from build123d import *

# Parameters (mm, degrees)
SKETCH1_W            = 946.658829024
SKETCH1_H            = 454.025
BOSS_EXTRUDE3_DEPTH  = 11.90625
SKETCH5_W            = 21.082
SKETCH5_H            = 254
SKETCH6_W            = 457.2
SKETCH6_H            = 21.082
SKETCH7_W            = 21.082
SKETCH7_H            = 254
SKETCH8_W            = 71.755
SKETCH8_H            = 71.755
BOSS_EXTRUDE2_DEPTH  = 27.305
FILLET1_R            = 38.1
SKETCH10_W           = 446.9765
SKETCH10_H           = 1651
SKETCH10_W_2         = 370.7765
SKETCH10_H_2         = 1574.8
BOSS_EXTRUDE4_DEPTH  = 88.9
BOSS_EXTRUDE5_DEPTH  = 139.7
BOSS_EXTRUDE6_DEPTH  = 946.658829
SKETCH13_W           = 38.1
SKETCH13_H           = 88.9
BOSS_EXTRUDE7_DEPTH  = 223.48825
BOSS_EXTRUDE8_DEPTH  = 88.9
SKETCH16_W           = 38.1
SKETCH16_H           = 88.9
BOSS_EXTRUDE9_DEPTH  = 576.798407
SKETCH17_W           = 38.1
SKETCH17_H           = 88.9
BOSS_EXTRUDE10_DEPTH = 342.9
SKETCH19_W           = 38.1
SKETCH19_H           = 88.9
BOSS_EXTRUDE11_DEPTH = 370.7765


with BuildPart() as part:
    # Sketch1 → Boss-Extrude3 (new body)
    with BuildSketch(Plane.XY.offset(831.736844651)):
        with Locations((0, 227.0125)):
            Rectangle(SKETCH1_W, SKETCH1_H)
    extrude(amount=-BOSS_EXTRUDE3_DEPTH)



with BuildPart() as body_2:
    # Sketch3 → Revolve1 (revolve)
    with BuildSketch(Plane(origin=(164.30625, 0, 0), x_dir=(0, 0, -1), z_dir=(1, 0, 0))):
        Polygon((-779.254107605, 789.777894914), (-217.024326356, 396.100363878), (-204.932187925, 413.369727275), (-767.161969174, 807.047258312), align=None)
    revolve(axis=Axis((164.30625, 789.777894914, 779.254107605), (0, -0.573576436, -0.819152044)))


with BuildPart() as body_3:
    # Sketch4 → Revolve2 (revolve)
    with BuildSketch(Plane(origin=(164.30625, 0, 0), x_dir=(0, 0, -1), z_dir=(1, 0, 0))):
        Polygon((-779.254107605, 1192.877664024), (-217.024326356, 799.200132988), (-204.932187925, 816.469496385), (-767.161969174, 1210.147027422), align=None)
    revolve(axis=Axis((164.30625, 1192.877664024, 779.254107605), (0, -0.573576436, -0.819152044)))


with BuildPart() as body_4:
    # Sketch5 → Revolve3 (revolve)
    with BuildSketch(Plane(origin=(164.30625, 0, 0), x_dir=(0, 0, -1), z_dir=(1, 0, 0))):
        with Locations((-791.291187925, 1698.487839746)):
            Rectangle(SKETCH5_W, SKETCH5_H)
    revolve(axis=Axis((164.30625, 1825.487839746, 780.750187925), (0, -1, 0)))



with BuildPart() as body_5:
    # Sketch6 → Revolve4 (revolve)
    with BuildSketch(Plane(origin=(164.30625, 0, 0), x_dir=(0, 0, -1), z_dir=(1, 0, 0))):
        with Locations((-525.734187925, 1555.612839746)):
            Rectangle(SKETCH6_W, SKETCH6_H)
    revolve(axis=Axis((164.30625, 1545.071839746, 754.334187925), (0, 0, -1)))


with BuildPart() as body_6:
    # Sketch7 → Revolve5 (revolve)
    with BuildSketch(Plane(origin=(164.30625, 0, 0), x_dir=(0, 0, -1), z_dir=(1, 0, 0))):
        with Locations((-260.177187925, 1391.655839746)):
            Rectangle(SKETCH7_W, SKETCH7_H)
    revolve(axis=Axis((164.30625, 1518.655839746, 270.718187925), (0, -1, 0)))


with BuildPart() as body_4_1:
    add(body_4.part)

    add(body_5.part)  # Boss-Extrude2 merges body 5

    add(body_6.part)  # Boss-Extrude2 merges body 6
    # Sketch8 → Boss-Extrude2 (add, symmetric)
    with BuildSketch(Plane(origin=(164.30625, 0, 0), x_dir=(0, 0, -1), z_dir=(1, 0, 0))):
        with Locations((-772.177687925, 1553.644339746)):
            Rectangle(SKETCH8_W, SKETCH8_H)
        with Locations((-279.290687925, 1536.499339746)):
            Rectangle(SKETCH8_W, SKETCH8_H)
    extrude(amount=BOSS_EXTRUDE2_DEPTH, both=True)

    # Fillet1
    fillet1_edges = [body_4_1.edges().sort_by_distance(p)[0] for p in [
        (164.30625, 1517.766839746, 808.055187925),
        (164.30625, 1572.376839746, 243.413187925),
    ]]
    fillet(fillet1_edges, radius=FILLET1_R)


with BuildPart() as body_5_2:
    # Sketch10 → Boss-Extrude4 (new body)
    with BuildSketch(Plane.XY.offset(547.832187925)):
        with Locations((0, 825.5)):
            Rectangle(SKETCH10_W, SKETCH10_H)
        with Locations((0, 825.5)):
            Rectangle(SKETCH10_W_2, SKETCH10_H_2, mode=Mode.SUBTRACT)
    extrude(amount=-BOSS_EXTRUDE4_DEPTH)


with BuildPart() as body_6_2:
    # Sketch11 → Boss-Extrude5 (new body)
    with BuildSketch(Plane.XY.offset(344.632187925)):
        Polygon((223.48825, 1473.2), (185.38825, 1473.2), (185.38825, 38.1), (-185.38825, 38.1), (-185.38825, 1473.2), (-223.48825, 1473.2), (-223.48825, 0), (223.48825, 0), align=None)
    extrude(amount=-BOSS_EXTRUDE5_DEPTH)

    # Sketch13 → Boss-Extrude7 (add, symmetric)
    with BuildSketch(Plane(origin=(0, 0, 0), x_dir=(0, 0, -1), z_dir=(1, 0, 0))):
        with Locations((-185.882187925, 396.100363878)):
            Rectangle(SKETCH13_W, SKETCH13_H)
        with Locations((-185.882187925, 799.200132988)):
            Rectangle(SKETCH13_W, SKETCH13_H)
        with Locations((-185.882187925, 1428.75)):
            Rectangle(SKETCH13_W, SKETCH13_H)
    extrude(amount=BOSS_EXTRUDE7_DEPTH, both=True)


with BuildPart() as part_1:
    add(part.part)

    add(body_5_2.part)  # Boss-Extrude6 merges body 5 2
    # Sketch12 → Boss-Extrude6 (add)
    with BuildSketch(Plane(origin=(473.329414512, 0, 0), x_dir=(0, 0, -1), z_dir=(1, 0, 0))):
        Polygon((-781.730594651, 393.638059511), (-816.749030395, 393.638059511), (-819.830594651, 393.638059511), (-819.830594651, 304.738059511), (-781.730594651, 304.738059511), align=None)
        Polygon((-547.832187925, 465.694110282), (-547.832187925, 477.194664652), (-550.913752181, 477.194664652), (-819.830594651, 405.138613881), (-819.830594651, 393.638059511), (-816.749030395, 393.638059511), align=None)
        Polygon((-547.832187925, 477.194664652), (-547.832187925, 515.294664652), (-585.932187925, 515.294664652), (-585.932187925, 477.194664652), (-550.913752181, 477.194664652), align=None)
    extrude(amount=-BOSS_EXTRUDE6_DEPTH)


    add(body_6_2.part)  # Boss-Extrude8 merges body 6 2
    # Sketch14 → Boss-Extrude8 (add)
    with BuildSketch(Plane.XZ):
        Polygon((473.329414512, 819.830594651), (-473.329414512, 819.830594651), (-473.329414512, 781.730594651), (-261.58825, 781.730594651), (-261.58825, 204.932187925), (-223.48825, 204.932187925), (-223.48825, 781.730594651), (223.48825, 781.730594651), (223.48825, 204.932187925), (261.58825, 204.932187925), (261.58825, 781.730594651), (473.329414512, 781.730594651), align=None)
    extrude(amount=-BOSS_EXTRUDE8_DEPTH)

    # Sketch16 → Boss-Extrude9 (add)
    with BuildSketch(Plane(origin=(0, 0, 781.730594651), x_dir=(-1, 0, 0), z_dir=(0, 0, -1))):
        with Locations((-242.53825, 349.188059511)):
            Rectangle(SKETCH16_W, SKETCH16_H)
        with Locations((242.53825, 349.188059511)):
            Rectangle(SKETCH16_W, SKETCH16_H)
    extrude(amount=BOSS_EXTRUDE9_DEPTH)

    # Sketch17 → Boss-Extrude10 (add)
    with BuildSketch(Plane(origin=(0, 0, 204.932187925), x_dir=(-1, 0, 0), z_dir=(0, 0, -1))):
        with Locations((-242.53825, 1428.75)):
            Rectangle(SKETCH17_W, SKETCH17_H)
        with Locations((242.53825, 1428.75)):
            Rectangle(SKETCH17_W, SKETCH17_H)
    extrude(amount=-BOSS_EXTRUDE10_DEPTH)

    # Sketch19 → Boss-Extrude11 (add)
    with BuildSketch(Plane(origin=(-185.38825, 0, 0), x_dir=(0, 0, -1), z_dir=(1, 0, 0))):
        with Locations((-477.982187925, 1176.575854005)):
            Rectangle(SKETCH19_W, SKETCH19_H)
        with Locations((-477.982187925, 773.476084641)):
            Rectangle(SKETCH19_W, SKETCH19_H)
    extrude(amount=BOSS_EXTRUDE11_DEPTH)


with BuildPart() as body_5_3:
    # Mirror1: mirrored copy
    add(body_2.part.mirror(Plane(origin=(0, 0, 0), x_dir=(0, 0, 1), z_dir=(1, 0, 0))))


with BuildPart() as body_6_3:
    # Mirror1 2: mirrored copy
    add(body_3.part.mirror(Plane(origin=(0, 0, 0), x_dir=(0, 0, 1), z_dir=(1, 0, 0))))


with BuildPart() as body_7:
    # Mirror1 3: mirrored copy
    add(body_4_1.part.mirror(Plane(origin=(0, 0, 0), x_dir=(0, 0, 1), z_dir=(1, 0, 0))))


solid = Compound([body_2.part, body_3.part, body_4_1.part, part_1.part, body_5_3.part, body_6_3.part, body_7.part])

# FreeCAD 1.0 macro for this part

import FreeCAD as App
import Part
import Sketcher

V = App.Vector
Q = App.Units.Quantity


def edges_at(feature, points):
    """Names of the edges that pass closest to the given points."""
    edges = feature.Shape.Edges
    near = lambda p: min(range(len(edges)), key=lambda i: edges[i].distToShape(Part.Vertex(*p))[0])
    return sorted({f"Edge{near(p) + 1}" for p in points})


def add_polygon(sketch, points):
    """Adds a closed chain of lines whose ends are joined by coincident constraints."""
    first, n = sketch.GeometryCount, len(points)
    for a, b in zip(points, points[1:] + points[:1]):
        sketch.addGeometry(Part.LineSegment(App.Vector(*a, 0), App.Vector(*b, 0)), False)
    for i in range(n):
        sketch.addConstraint(Sketcher.Constraint("Coincident", first + i, 2, first + (i + 1) % n, 1))

doc = App.newDocument("Part")
params = doc.addObject("Spreadsheet::Sheet", "Params")
for row, (alias, value) in enumerate([
    ("sketch1_height", "17.875 in"),
    ("pad1_length", "0.46875 in"),
    ("sketch2_length", "0.83 in"),
    ("revolution_angle", "360 deg"),
    ("sketch3_length", "0.83 in"),
    ("revolution2_angle", "360 deg"),
    ("sketch4_width", "10 in"),
    ("sketch4_height", "0.83 in"),
    ("revolution3_angle", "360 deg"),
    ("sketch5_height", "18 in"),
    ("sketch5_width", "0.83 in"),
    ("revolution4_angle", "360 deg"),
    ("sketch6_width", "10 in"),
    ("sketch6_height", "0.83 in"),
    ("revolution5_angle", "360 deg"),
    ("sketch7_width", "2.825 in"),
    ("pad2_length", "2.15 in"),
    ("fillet_radius", "1.5 in"),
    ("sketch8_height", "65 in"),
    ("sketch8_height2", "62 in"),
    ("pad3_length", "3.5 in"),
    ("sketch9_height", "58 in"),
    ("sketch9_width", "1.5 in"),
    ("sketch9_height2", "56.5 in"),
    ("pad4_length", "5.5 in"),
    ("sketch10_width", "3.5 in"),
    ("sketch10_height", "1.5 in"),
    ("pad5_length", "17.5975 in"),
    ("sketch11_width", "1.5 in"),
    ("sketch11_width2", "3.5 in"),
    ("pad6_length", "946.658829 mm"),
    ("sketch12_width", "1.5 in"),
    ("pad7_length", "3.5 in"),
    ("sketch13_width", "1.5 in"),
    ("sketch13_height", "3.5 in"),
    ("pad8_length", "576.798407 mm"),
    ("sketch14_width", "1.5 in"),
    ("sketch14_height", "3.5 in"),
    ("pad9_length", "13.5 in"),
    ("sketch15_width", "3.5 in"),
    ("sketch15_height", "1.5 in"),
    ("pad10_length", "14.5975 in"),
], start=1):
    params.set(f"A{row}", alias)
    params.set(f"B{row}", "=" + value)
    params.setAlias(f"B{row}", alias)

body = doc.addObject("PartDesign::Body", "Body")

sketch1 = body.newObject("Sketcher::SketchObject", "Sketch")
sketch1.AttachmentSupport = (doc.getObject("XY_Plane"), [""])
sketch1.MapMode = "FlatFace"
sketch1.AttachmentOffset = App.Placement(V(0, 0, 831.736845), App.Rotation())
add_polygon(sketch1, [(-473, 454), (-473, 0), (473, 0), (473, 454)])
sketch1.addConstraint([
    Sketcher.Constraint("Vertical", 0),
    Sketcher.Constraint("Horizontal", 1),
    Sketcher.Constraint("Vertical", 2),
    Sketcher.Constraint("Horizontal", 3),
    Sketcher.Constraint("Symmetric", 0, 2, 1, 2, -1, 1),
    Sketcher.Constraint("DistanceY", 0, 2, 0, 1, Q("17.875 in")),
    Sketcher.Constraint("DistanceX", 1, 1, 1, 2, 946.658829),
])
sketch1.setExpression("Constraints[9]", "Params.sketch1_height")
pad1 = body.newObject("PartDesign::Pad", "Pad")
pad1.Profile = sketch1
pad1.setExpression("Length", "Params.pad1_length")
pad1.Reversed = True
body2 = doc.addObject("PartDesign::Body", "Body001")

sketch2 = body2.newObject("Sketcher::SketchObject", "Sketch001")
sketch2.AttachmentSupport = (doc.getObject("YZ_Plane001"), [""])
sketch2.MapMode = "FlatFace"
sketch2.AttachmentOffset = App.Placement(V(0, 0, 6.46875 * 25.4), App.Rotation())
add_polygon(sketch2, [(790, 779), (396, 217), (413, 205), (807, 767)])
sketch2.addGeometry(Part.LineSegment(V(790, 779, 0), V(396, 217, 0)), True)
sketch2.addConstraint([
    Sketcher.Constraint("Coincident", 4, 1, 3, 2),
    Sketcher.Constraint("Coincident", 4, 2, 0, 2),
    Sketcher.Constraint("Perpendicular", 0, 1),
    Sketcher.Constraint("Perpendicular", 1, 2),
    Sketcher.Constraint("Perpendicular", 2, 3),
    Sketcher.Constraint("Angle", 0, Q("-125 deg")),
    Sketcher.Constraint("Distance", 1, Q("0.83 in")),
    Sketcher.Constraint("Distance", 0, 686.35583),
    Sketcher.Constraint("DistanceX", -1, 1, 2, 2, 807.047258),
    Sketcher.Constraint("DistanceY", -1, 1, 2, 2, 767.161969),
])
sketch2.setExpression("Constraints[10]", "Params.sketch2_length")
revolution = body2.newObject("PartDesign::Revolution", "Revolution")
revolution.Profile = sketch2
revolution.ReferenceAxis = (sketch2, ["Axis0"])
revolution.setExpression("Angle", "Params.revolution_angle")
body3 = doc.addObject("PartDesign::Body", "Body002")

sketch3 = body3.newObject("Sketcher::SketchObject", "Sketch002")
sketch3.AttachmentSupport = (doc.getObject("YZ_Plane002"), [""])
sketch3.MapMode = "FlatFace"
sketch3.AttachmentOffset = App.Placement(V(0, 0, 6.46875 * 25.4), App.Rotation())
add_polygon(sketch3, [(1193, 779), (799, 217), (816, 205), (1210, 767)])
sketch3.addGeometry(Part.LineSegment(V(1193, 779, 0), V(799, 217, 0)), True)
sketch3.addConstraint([
    Sketcher.Constraint("Coincident", 4, 1, 3, 2),
    Sketcher.Constraint("Coincident", 4, 2, 0, 2),
    Sketcher.Constraint("Perpendicular", 0, 1),
    Sketcher.Constraint("Perpendicular", 1, 2),
    Sketcher.Constraint("Perpendicular", 2, 3),
    Sketcher.Constraint("Angle", 0, Q("-125 deg")),
    Sketcher.Constraint("Distance", 1, Q("0.83 in")),
    Sketcher.Constraint("Distance", 0, 686.35583),
    Sketcher.Constraint("DistanceY", -1, 1, 2, 2, 767.161969),
    Sketcher.Constraint("DistanceX", -1, 1, 0, 2, 799.200133),
])
sketch3.setExpression("Constraints[10]", "Params.sketch3_length")
revolution2 = body3.newObject("PartDesign::Revolution", "Revolution001")
revolution2.Profile = sketch3
revolution2.ReferenceAxis = (sketch3, ["Axis0"])
revolution2.setExpression("Angle", "Params.revolution2_angle")
body4 = doc.addObject("PartDesign::Body", "Body003")

sketch4 = body4.newObject("Sketcher::SketchObject", "Sketch003")
sketch4.AttachmentSupport = (doc.getObject("YZ_Plane003"), [""])
sketch4.MapMode = "FlatFace"
sketch4.AttachmentOffset = App.Placement(V(0, 0, 6.46875 * 25.4), App.Rotation())
add_polygon(sketch4, [(1825, 802), (1571, 802), (1571, 781), (1825, 781)])
sketch4.addGeometry(Part.LineSegment(V(1825, 781, 0), V(1571, 781, 0)), True)
sketch4.addConstraint([
    Sketcher.Constraint("Horizontal", 0),
    Sketcher.Constraint("Vertical", 1),
    Sketcher.Constraint("Horizontal", 2),
    Sketcher.Constraint("Vertical", 3),
    Sketcher.Constraint("Horizontal", 4),
    Sketcher.Constraint("Coincident", 4, 1, 2, 2),
    Sketcher.Constraint("Vertical", 0, 2, 4, 2),
    Sketcher.Constraint("DistanceX", 0, 2, 0, 1, Q("10 in")),
    Sketcher.Constraint("DistanceY", 1, 2, 1, 1, Q("0.83 in")),
    Sketcher.Constraint("DistanceX", -1, 1, 0, 2, Q("61.8696 in")),
    Sketcher.Constraint("DistanceY", -1, 1, 0, 2, 801.832188),
])
sketch4.setExpression("Constraints[11]", "Params.sketch4_width")
sketch4.setExpression("Constraints[12]", "Params.sketch4_height")
revolution3 = body4.newObject("PartDesign::Revolution", "Revolution002")
revolution3.Profile = sketch4
revolution3.ReferenceAxis = (sketch4, ["Axis0"])
revolution3.setExpression("Angle", "Params.revolution3_angle")
body5 = doc.addObject("PartDesign::Body", "Body004")

sketch5 = body5.newObject("Sketcher::SketchObject", "Sketch004")
sketch5.AttachmentSupport = (doc.getObject("YZ_Plane004"), [""])
sketch5.MapMode = "FlatFace"
sketch5.AttachmentOffset = App.Placement(V(0, 0, 6.46875 * 25.4), App.Rotation())
add_polygon(sketch5, [(1566, 754), (1545, 754), (1545, 297), (1566, 297)])
sketch5.addGeometry(Part.LineSegment(V(1545, 754, 0), V(1545, 297, 0)), True)
sketch5.addConstraint([
    Sketcher.Constraint("Horizontal", 0),
    Sketcher.Constraint("Vertical", 1),
    Sketcher.Constraint("Horizontal", 2),
    Sketcher.Constraint("Vertical", 3),
    Sketcher.Constraint("Vertical", 4),
    Sketcher.Constraint("Coincident", 4, 1, 0, 2),
    Sketcher.Constraint("Horizontal", 2, 2, 4, 2),
    Sketcher.Constraint("DistanceY", 1, 2, 1, 1, Q("18 in")),
    Sketcher.Constraint("DistanceX", 0, 2, 0, 1, Q("0.83 in")),
    Sketcher.Constraint("DistanceX", -1, 1, 0, 2, Q("60.8296 in")),
    Sketcher.Constraint("DistanceY", -1, 1, 0, 2, 754.334188),
])
sketch5.setExpression("Constraints[11]", "Params.sketch5_height")
sketch5.setExpression("Constraints[12]", "Params.sketch5_width")
revolution4 = body5.newObject("PartDesign::Revolution", "Revolution003")
revolution4.Profile = sketch5
revolution4.ReferenceAxis = (sketch5, ["Axis0"])
revolution4.setExpression("Angle", "Params.revolution4_angle")
body6 = doc.addObject("PartDesign::Body", "Body005")

sketch6 = body6.newObject("Sketcher::SketchObject", "Sketch005")
sketch6.AttachmentSupport = (doc.getObject("YZ_Plane005"), [""])
sketch6.MapMode = "FlatFace"
sketch6.AttachmentOffset = App.Placement(V(0, 0, 6.46875 * 25.4), App.Rotation())
add_polygon(sketch6, [(1519, 271), (1265, 271), (1265, 250), (1519, 250)])
sketch6.addGeometry(Part.LineSegment(V(1519, 271, 0), V(1265, 271, 0)), True)
sketch6.addConstraint([
    Sketcher.Constraint("Horizontal", 0),
    Sketcher.Constraint("Vertical", 1),
    Sketcher.Constraint("Horizontal", 2),
    Sketcher.Constraint("Vertical", 3),
    Sketcher.Constraint("Horizontal", 4),
    Sketcher.Constraint("Coincident", 4, 1, 3, 2),
    Sketcher.Constraint("Vertical", 1, 2, 4, 2),
    Sketcher.Constraint("DistanceX", 0, 2, 0, 1, Q("10 in")),
    Sketcher.Constraint("DistanceY", 1, 2, 1, 1, Q("0.83 in")),
    Sketcher.Constraint("DistanceX", -1, 1, 0, 2, Q("49.7896 in")),
    Sketcher.Constraint("DistanceY", -1, 1, 0, 2, 270.718188),
])
sketch6.setExpression("Constraints[11]", "Params.sketch6_width")
sketch6.setExpression("Constraints[12]", "Params.sketch6_height")
revolution5 = body6.newObject("PartDesign::Revolution", "Revolution004")
revolution5.Profile = sketch6
revolution5.ReferenceAxis = (sketch6, ["Axis0"])
revolution5.setExpression("Angle", "Params.revolution5_angle")
body4.AllowCompound = True
doc.recompute()

boolean = body4.newObject("PartDesign::Boolean", "Boolean")
boolean.Type = "Fuse"
boolean.addObjects([body5])
doc.recompute()

boolean2 = body4.newObject("PartDesign::Boolean", "Boolean001")
boolean2.Type = "Fuse"
boolean2.addObjects([body6])

sketch7 = body4.newObject("Sketcher::SketchObject", "Sketch006")
sketch7.AttachmentSupport = (doc.getObject("YZ_Plane003"), [""])
sketch7.MapMode = "FlatFace"
sketch7.AttachmentOffset = App.Placement(V(0, 0, 6.46875 * 25.4), App.Rotation())
add_polygon(sketch7, [(1590, 808), (1518, 808), (1518, 736), (1590, 736)])
add_polygon(sketch7, [(1572, 315), (1501, 315), (1501, 243), (1572, 243)])
sketch7.addConstraint([
    Sketcher.Constraint("Horizontal", 0),
    Sketcher.Constraint("Vertical", 1),
    Sketcher.Constraint("Horizontal", 2),
    Sketcher.Constraint("Vertical", 3),
    Sketcher.Constraint("Horizontal", 4),
    Sketcher.Constraint("Vertical", 5),
    Sketcher.Constraint("Horizontal", 6),
    Sketcher.Constraint("Vertical", 7),
    Sketcher.Constraint("Equal", 2, 4),
    Sketcher.Constraint("Equal", 6, 1),
    Sketcher.Constraint("Equal", 3, 5),
    Sketcher.Constraint("DistanceX", 4, 2, 2, 2, Q("3.5 in")),
    Sketcher.Constraint("DistanceX", 0, 2, 0, 1, Q("2.825 in")),
    Sketcher.Constraint("DistanceY", 4, 2, 1, 2, Q("16.58 in")),
    Sketcher.Constraint("DistanceX", -1, 1, 0, 2, Q("59.7546 in")),
    Sketcher.Constraint("DistanceY", -1, 1, 0, 2, 808.055188),
])
sketch7.setExpression("Constraints[20]", "Params.sketch7_width")
pad2 = body4.newObject("PartDesign::Pad", "Pad001")
pad2.Profile = sketch7
pad2.setExpression("Length", "Params.pad2_length")
pad2.Midplane = True
doc.recompute()

fillet = body4.newObject("PartDesign::Fillet", "Fillet")
fillet.Base = (pad2, edges_at(pad2, [(164.306, 1517.767, 808.055), (164.306, 1572.377, 243.413)]))
fillet.setExpression("Radius", "Params.fillet_radius")
body7 = doc.addObject("PartDesign::Body", "Body006")

sketch8 = body7.newObject("Sketcher::SketchObject", "Sketch007")
sketch8.AttachmentSupport = (doc.getObject("XY_Plane006"), [""])
sketch8.MapMode = "FlatFace"
sketch8.AttachmentOffset = App.Placement(V(0, 0, 547.832188), App.Rotation())
add_polygon(sketch8, [(-223, 1651), (-223, 0), (223, 0), (223, 1651)])
add_polygon(sketch8, [(185, 38), (-185, 38), (-185, 1613), (185, 1613)])
sketch8.addConstraint([
    Sketcher.Constraint("Vertical", 0),
    Sketcher.Constraint("Horizontal", 1),
    Sketcher.Constraint("Vertical", 2),
    Sketcher.Constraint("Horizontal", 3),
    Sketcher.Constraint("Horizontal", 4),
    Sketcher.Constraint("Vertical", 5),
    Sketcher.Constraint("Horizontal", 6),
    Sketcher.Constraint("Vertical", 7),
    Sketcher.Constraint("Symmetric", 0, 2, 1, 2, -1, 1),
    Sketcher.Constraint("DistanceY", 0, 2, 0, 1, Q("65 in")),
    Sketcher.Constraint("DistanceY", 5, 1, 5, 2, Q("62 in")),
    Sketcher.Constraint("DistanceY", -1, 1, 4, 2, Q("1.5 in")),
    Sketcher.Constraint("DistanceX", 0, 2, 4, 2, Q("1.5 in")),
    Sketcher.Constraint("DistanceX", 6, 2, 2, 2, Q("1.5 in")),
    Sketcher.Constraint("DistanceX", 1, 1, 1, 2, Q("17.5975 in")),
])
sketch8.setExpression("Constraints[17]", "Params.sketch8_height")
sketch8.setExpression("Constraints[18]", "Params.sketch8_height2")
pad3 = body7.newObject("PartDesign::Pad", "Pad002")
pad3.Profile = sketch8
pad3.setExpression("Length", "Params.pad3_length")
pad3.Reversed = True
body8 = doc.addObject("PartDesign::Body", "Body007")

sketch9 = body8.newObject("Sketcher::SketchObject", "Sketch008")
sketch9.AttachmentSupport = (doc.getObject("XY_Plane007"), [""])
sketch9.MapMode = "FlatFace"
sketch9.AttachmentOffset = App.Placement(V(0, 0, 344.632188), App.Rotation())
add_polygon(sketch9, [(223, 1473), (185, 1473), (185, 38), (-185, 38), (-185, 1473), (-223, 1473), (-223, 0), (223, 0)])
sketch9.addConstraint([
    Sketcher.Constraint("Horizontal", 0),
    Sketcher.Constraint("Vertical", 1),
    Sketcher.Constraint("Horizontal", 2),
    Sketcher.Constraint("Vertical", 3),
    Sketcher.Constraint("Horizontal", 4),
    Sketcher.Constraint("Vertical", 5),
    Sketcher.Constraint("Horizontal", 6),
    Sketcher.Constraint("Vertical", 7),
    Sketcher.Constraint("Symmetric", 5, 2, 6, 2, -1, 1),
    Sketcher.Constraint("Symmetric", 0, 2, 3, 2, -2),
    Sketcher.Constraint("DistanceY", 5, 2, 5, 1, Q("58 in")),
    Sketcher.Constraint("DistanceX", 0, 2, 0, 1, Q("1.5 in")),
    Sketcher.Constraint("DistanceY", 1, 2, 1, 1, Q("56.5 in")),
    Sketcher.Constraint("DistanceX", 2, 2, 2, 1, Q("14.5975 in")),
])
sketch9.setExpression("Constraints[18]", "Params.sketch9_height")
sketch9.setExpression("Constraints[19]", "Params.sketch9_width")
sketch9.setExpression("Constraints[20]", "Params.sketch9_height2")
pad4 = body8.newObject("PartDesign::Pad", "Pad003")
pad4.Profile = sketch9
pad4.setExpression("Length", "Params.pad4_length")
pad4.Reversed = True

sketch10 = body8.newObject("Sketcher::SketchObject", "Sketch009")
sketch10.AttachmentSupport = (doc.getObject("YZ_Plane007"), [""])
sketch10.MapMode = "FlatFace"
add_polygon(sketch10, [(441, 205), (352, 205), (352, 167), (441, 167)])
add_polygon(sketch10, [(844, 205), (755, 205), (755, 167), (844, 167)])
add_polygon(sketch10, [(1473, 205), (1384, 205), (1384, 167), (1473, 167)])
sketch10.addConstraint([
    Sketcher.Constraint("Horizontal", 0),
    Sketcher.Constraint("Vertical", 1),
    Sketcher.Constraint("Horizontal", 2),
    Sketcher.Constraint("Vertical", 3),
    Sketcher.Constraint("Horizontal", 4),
    Sketcher.Constraint("Vertical", 5),
    Sketcher.Constraint("Horizontal", 6),
    Sketcher.Constraint("Vertical", 7),
    Sketcher.Constraint("Horizontal", 8),
    Sketcher.Constraint("Vertical", 9),
    Sketcher.Constraint("Horizontal", 10),
    Sketcher.Constraint("Vertical", 11),
    Sketcher.Constraint("Horizontal", 3, 2, 4, 2),
    Sketcher.Constraint("Horizontal", 2, 2, 5, 2),
    Sketcher.Constraint("Horizontal", 7, 2, 8, 2),
    Sketcher.Constraint("Horizontal", 6, 2, 9, 2),
    Sketcher.Constraint("Equal", 2, 4),
    Sketcher.Constraint("Equal", 6, 8),
    Sketcher.Constraint("DistanceX", 0, 2, 0, 1, Q("3.5 in")),
    Sketcher.Constraint("DistanceY", 1, 2, 1, 1, Q("1.5 in")),
    Sketcher.Constraint("DistanceX", -1, 1, 10, 2, Q("58 in")),
    Sketcher.Constraint("DistanceX", 3, 2, 4, 2, 314.199769),
    Sketcher.Constraint("DistanceX", -1, 1, 0, 2, 351.650364),
    Sketcher.Constraint("DistanceY", -1, 1, 0, 2, 204.932188),
])
sketch10.setExpression("Constraints[30]", "Params.sketch10_width")
sketch10.setExpression("Constraints[31]", "Params.sketch10_height")
pad5 = body8.newObject("PartDesign::Pad", "Pad004")
pad5.Profile = sketch10
pad5.setExpression("Length", "Params.pad5_length")
pad5.Midplane = True
body.AllowCompound = True
doc.recompute()

boolean3 = body.newObject("PartDesign::Boolean", "Boolean002")
boolean3.Type = "Fuse"
boolean3.addObjects([body7])

sketch11 = body.newObject("Sketcher::SketchObject", "Sketch010")
sketch11.AttachmentSupport = (doc.getObject("YZ_Plane"), [""])
sketch11.MapMode = "FlatFace"
sketch11.AttachmentOffset = App.Placement(V(0, 0, 473.329415), App.Rotation())
add_polygon(sketch11, [(394, 782), (394, 817), (466, 548), (515, 548), (515, 586), (477, 586), (477, 551), (405, 820), (305, 820), (305, 782)])
sketch11.addConstraint([
    Sketcher.Constraint("Vertical", 0),
    Sketcher.Constraint("Horizontal", 2),
    Sketcher.Constraint("Vertical", 3),
    Sketcher.Constraint("Horizontal", 4),
    Sketcher.Constraint("Vertical", 5),
    Sketcher.Constraint("Horizontal", 7),
    Sketcher.Constraint("Vertical", 8),
    Sketcher.Constraint("Horizontal", 9),
    Sketcher.Constraint("Parallel", 1, 6),
    Sketcher.Constraint("Equal", 4, 3),
    Sketcher.Constraint("Equal", 0, 5),
    Sketcher.Constraint("Equal", 3, 8),
    Sketcher.Constraint("DistanceX", 4, 2, 4, 1, Q("1.5 in")),
    Sketcher.Constraint("DistanceX", 9, 1, 9, 2, Q("3.5 in")),
    Sketcher.Constraint("Angle", 1, Q("-75 deg")),
    Sketcher.Constraint("Distance", 1, 278.403202),
    Sketcher.Constraint("DistanceX", 2, 1, 2, 2, 49.600554),
    Sketcher.Constraint("DistanceY", 0, 1, 0, 2, 35.018436),
    Sketcher.Constraint("DistanceX", -1, 1, 0, 2, 393.63806),
    Sketcher.Constraint("DistanceY", -1, 1, 0, 2, 816.74903),
])
sketch11.setExpression("Constraints[22]", "Params.sketch11_width")
sketch11.setExpression("Constraints[23]", "Params.sketch11_width2")
pad6 = body.newObject("PartDesign::Pad", "Pad005")
pad6.Profile = sketch11
pad6.setExpression("Length", "Params.pad6_length")
pad6.Reversed = True
doc.recompute()

boolean4 = body.newObject("PartDesign::Boolean", "Boolean003")
boolean4.Type = "Fuse"
boolean4.addObjects([body8])

sketch12 = body.newObject("Sketcher::SketchObject", "Sketch011")
sketch12.AttachmentSupport = (doc.getObject("XZ_Plane"), [""])
sketch12.MapMode = "FlatFace"
add_polygon(sketch12, [(473, 820), (-473, 820), (-473, 782), (-262, 782), (-262, 205), (-223, 205), (-223, 782), (223, 782), (223, 205), (262, 205), (262, 782), (473, 782)])
sketch12.addConstraint([
    Sketcher.Constraint("Horizontal", 0),
    Sketcher.Constraint("Vertical", 1),
    Sketcher.Constraint("Horizontal", 2),
    Sketcher.Constraint("Vertical", 3),
    Sketcher.Constraint("Horizontal", 4),
    Sketcher.Constraint("Vertical", 5),
    Sketcher.Constraint("Horizontal", 6),
    Sketcher.Constraint("Vertical", 7),
    Sketcher.Constraint("Horizontal", 8),
    Sketcher.Constraint("Vertical", 9),
    Sketcher.Constraint("Horizontal", 10),
    Sketcher.Constraint("Vertical", 11),
    Sketcher.Constraint("Symmetric", 4, 2, 7, 2, -2),
    Sketcher.Constraint("Symmetric", 2, 2, 9, 2, -2),
    Sketcher.Constraint("Horizontal", 2, 2, 5, 2),
    Sketcher.Constraint("Equal", 2, 10),
    Sketcher.Constraint("Equal", 8, 1),
    Sketcher.Constraint("DistanceX", 4, 1, 4, 2, Q("1.5 in")),
    Sketcher.Constraint("DistanceX", 6, 1, 6, 2, Q("17.5975 in")),
    Sketcher.Constraint("DistanceX", 0, 2, 0, 1, 946.658829),
    Sketcher.Constraint("DistanceY", 3, 2, 3, 1, 576.798407),
    Sketcher.Constraint("DistanceY", -1, 1, 0, 2, 819.830595),
])
sketch12.setExpression("Constraints[29]", "Params.sketch12_width")
pad7 = body.newObject("PartDesign::Pad", "Pad006")
pad7.Profile = sketch12
pad7.setExpression("Length", "Params.pad7_length")
pad7.Reversed = True

sketch13 = body.newObject("Sketcher::SketchObject", "Sketch012")
sketch13.AttachmentSupport = (doc.getObject("XY_Plane"), [""])
sketch13.MapMode = "FlatFace"
sketch13.AttachmentOffset = App.Placement(V(0, 0, 781.730595), App.Rotation())
add_polygon(sketch13, [(262, 394), (262, 305), (223, 305), (223, 394)])
add_polygon(sketch13, [(-223, 394), (-223, 305), (-262, 305), (-262, 394)])
sketch13.addConstraint([
    Sketcher.Constraint("Vertical", 0),
    Sketcher.Constraint("Horizontal", 1),
    Sketcher.Constraint("Vertical", 2),
    Sketcher.Constraint("Horizontal", 3),
    Sketcher.Constraint("Vertical", 4),
    Sketcher.Constraint("Horizontal", 5),
    Sketcher.Constraint("Vertical", 6),
    Sketcher.Constraint("Horizontal", 7),
    Sketcher.Constraint("Symmetric", 1, 2, 4, 2, -2),
    Sketcher.Constraint("Symmetric", 3, 2, 6, 2, -2),
    Sketcher.Constraint("DistanceX", 1, 2, 1, 1, Q("1.5 in")),
    Sketcher.Constraint("DistanceY", 0, 2, 0, 1, Q("3.5 in")),
    Sketcher.Constraint("DistanceX", 4, 2, 1, 2, Q("17.5975 in")),
    Sketcher.Constraint("DistanceY", -1, 1, 0, 2, 304.73806),
])
sketch13.setExpression("Constraints[18]", "Params.sketch13_width")
sketch13.setExpression("Constraints[19]", "Params.sketch13_height")
pad8 = body.newObject("PartDesign::Pad", "Pad007")
pad8.Profile = sketch13
pad8.setExpression("Length", "Params.pad8_length")
pad8.Reversed = True

sketch14 = body.newObject("Sketcher::SketchObject", "Sketch013")
sketch14.AttachmentSupport = (doc.getObject("XY_Plane"), [""])
sketch14.MapMode = "FlatFace"
sketch14.AttachmentOffset = App.Placement(V(0, 0, 204.932188), App.Rotation())
add_polygon(sketch14, [(262, 1473), (262, 1384), (223, 1384), (223, 1473)])
add_polygon(sketch14, [(-223, 1473), (-223, 1384), (-262, 1384), (-262, 1473)])
sketch14.addConstraint([
    Sketcher.Constraint("Vertical", 0),
    Sketcher.Constraint("Horizontal", 1),
    Sketcher.Constraint("Vertical", 2),
    Sketcher.Constraint("Horizontal", 3),
    Sketcher.Constraint("Vertical", 4),
    Sketcher.Constraint("Horizontal", 5),
    Sketcher.Constraint("Vertical", 6),
    Sketcher.Constraint("Horizontal", 7),
    Sketcher.Constraint("Symmetric", 1, 2, 4, 2, -2),
    Sketcher.Constraint("Symmetric", 3, 2, 6, 2, -2),
    Sketcher.Constraint("DistanceX", 1, 2, 1, 1, Q("1.5 in")),
    Sketcher.Constraint("DistanceY", 0, 2, 0, 1, Q("3.5 in")),
    Sketcher.Constraint("DistanceY", -1, 1, 2, 2, Q("58 in")),
    Sketcher.Constraint("DistanceX", 4, 2, 1, 2, Q("17.5975 in")),
])
sketch14.setExpression("Constraints[18]", "Params.sketch14_width")
sketch14.setExpression("Constraints[19]", "Params.sketch14_height")
pad9 = body.newObject("PartDesign::Pad", "Pad008")
pad9.Profile = sketch14
pad9.setExpression("Length", "Params.pad9_length")

sketch15 = body.newObject("Sketcher::SketchObject", "Sketch014")
sketch15.AttachmentSupport = (doc.getObject("YZ_Plane"), [""])
sketch15.MapMode = "FlatFace"
sketch15.AttachmentOffset = App.Placement(V(0, 0, -185.38825), App.Rotation())
add_polygon(sketch15, [(1221, 497), (1132, 497), (1132, 459), (1221, 459)])
add_polygon(sketch15, [(818, 497), (729, 497), (729, 459), (818, 459)])
sketch15.addConstraint([
    Sketcher.Constraint("Horizontal", 0),
    Sketcher.Constraint("Vertical", 1),
    Sketcher.Constraint("Horizontal", 2),
    Sketcher.Constraint("Vertical", 3),
    Sketcher.Constraint("Horizontal", 4),
    Sketcher.Constraint("Vertical", 5),
    Sketcher.Constraint("Horizontal", 6),
    Sketcher.Constraint("Vertical", 7),
    Sketcher.Constraint("Horizontal", 3, 2, 4, 2),
    Sketcher.Constraint("Horizontal", 2, 2, 5, 2),
    Sketcher.Constraint("Equal", 2, 4),
    Sketcher.Constraint("DistanceX", 0, 2, 0, 1, Q("3.5 in")),
    Sketcher.Constraint("DistanceY", 1, 2, 1, 1, Q("1.5 in")),
    Sketcher.Constraint("DistanceX", 4, 2, 0, 2, 403.099769),
    Sketcher.Constraint("DistanceX", -1, 1, 0, 2, 1132.125854),
    Sketcher.Constraint("DistanceY", -1, 1, 0, 2, 497.032188),
])
sketch15.setExpression("Constraints[19]", "Params.sketch15_width")
sketch15.setExpression("Constraints[20]", "Params.sketch15_height")
pad10 = body.newObject("PartDesign::Pad", "Pad009")
pad10.Profile = sketch15
pad10.setExpression("Length", "Params.pad10_length")
body9 = doc.addObject("PartDesign::Body", "Body008")
doc.recompute()

mirroring = doc.addObject("Part::Mirroring", "Mirroring")
mirroring.Source = body2
mirroring.Base = V(0, 0, 0)
mirroring.Normal = V(1, 0, 0)
body9.BaseFeature = mirroring
doc.recompute()
body10 = doc.addObject("PartDesign::Body", "Body009")
doc.recompute()

mirroring2 = doc.addObject("Part::Mirroring", "Mirroring001")
mirroring2.Source = body3
mirroring2.Base = V(0, 0, 0)
mirroring2.Normal = V(1, 0, 0)
body10.BaseFeature = mirroring2
doc.recompute()
body11 = doc.addObject("PartDesign::Body", "Body010")
doc.recompute()

mirroring3 = doc.addObject("Part::Mirroring", "Mirroring002")
mirroring3.Source = body4
mirroring3.Base = V(0, 0, 0)
mirroring3.Normal = V(1, 0, 0)
body11.BaseFeature = mirroring3
doc.recompute()
mirroring.Visibility = False
mirroring2.Visibility = False
mirroring3.Visibility = False

doc.recompute()
